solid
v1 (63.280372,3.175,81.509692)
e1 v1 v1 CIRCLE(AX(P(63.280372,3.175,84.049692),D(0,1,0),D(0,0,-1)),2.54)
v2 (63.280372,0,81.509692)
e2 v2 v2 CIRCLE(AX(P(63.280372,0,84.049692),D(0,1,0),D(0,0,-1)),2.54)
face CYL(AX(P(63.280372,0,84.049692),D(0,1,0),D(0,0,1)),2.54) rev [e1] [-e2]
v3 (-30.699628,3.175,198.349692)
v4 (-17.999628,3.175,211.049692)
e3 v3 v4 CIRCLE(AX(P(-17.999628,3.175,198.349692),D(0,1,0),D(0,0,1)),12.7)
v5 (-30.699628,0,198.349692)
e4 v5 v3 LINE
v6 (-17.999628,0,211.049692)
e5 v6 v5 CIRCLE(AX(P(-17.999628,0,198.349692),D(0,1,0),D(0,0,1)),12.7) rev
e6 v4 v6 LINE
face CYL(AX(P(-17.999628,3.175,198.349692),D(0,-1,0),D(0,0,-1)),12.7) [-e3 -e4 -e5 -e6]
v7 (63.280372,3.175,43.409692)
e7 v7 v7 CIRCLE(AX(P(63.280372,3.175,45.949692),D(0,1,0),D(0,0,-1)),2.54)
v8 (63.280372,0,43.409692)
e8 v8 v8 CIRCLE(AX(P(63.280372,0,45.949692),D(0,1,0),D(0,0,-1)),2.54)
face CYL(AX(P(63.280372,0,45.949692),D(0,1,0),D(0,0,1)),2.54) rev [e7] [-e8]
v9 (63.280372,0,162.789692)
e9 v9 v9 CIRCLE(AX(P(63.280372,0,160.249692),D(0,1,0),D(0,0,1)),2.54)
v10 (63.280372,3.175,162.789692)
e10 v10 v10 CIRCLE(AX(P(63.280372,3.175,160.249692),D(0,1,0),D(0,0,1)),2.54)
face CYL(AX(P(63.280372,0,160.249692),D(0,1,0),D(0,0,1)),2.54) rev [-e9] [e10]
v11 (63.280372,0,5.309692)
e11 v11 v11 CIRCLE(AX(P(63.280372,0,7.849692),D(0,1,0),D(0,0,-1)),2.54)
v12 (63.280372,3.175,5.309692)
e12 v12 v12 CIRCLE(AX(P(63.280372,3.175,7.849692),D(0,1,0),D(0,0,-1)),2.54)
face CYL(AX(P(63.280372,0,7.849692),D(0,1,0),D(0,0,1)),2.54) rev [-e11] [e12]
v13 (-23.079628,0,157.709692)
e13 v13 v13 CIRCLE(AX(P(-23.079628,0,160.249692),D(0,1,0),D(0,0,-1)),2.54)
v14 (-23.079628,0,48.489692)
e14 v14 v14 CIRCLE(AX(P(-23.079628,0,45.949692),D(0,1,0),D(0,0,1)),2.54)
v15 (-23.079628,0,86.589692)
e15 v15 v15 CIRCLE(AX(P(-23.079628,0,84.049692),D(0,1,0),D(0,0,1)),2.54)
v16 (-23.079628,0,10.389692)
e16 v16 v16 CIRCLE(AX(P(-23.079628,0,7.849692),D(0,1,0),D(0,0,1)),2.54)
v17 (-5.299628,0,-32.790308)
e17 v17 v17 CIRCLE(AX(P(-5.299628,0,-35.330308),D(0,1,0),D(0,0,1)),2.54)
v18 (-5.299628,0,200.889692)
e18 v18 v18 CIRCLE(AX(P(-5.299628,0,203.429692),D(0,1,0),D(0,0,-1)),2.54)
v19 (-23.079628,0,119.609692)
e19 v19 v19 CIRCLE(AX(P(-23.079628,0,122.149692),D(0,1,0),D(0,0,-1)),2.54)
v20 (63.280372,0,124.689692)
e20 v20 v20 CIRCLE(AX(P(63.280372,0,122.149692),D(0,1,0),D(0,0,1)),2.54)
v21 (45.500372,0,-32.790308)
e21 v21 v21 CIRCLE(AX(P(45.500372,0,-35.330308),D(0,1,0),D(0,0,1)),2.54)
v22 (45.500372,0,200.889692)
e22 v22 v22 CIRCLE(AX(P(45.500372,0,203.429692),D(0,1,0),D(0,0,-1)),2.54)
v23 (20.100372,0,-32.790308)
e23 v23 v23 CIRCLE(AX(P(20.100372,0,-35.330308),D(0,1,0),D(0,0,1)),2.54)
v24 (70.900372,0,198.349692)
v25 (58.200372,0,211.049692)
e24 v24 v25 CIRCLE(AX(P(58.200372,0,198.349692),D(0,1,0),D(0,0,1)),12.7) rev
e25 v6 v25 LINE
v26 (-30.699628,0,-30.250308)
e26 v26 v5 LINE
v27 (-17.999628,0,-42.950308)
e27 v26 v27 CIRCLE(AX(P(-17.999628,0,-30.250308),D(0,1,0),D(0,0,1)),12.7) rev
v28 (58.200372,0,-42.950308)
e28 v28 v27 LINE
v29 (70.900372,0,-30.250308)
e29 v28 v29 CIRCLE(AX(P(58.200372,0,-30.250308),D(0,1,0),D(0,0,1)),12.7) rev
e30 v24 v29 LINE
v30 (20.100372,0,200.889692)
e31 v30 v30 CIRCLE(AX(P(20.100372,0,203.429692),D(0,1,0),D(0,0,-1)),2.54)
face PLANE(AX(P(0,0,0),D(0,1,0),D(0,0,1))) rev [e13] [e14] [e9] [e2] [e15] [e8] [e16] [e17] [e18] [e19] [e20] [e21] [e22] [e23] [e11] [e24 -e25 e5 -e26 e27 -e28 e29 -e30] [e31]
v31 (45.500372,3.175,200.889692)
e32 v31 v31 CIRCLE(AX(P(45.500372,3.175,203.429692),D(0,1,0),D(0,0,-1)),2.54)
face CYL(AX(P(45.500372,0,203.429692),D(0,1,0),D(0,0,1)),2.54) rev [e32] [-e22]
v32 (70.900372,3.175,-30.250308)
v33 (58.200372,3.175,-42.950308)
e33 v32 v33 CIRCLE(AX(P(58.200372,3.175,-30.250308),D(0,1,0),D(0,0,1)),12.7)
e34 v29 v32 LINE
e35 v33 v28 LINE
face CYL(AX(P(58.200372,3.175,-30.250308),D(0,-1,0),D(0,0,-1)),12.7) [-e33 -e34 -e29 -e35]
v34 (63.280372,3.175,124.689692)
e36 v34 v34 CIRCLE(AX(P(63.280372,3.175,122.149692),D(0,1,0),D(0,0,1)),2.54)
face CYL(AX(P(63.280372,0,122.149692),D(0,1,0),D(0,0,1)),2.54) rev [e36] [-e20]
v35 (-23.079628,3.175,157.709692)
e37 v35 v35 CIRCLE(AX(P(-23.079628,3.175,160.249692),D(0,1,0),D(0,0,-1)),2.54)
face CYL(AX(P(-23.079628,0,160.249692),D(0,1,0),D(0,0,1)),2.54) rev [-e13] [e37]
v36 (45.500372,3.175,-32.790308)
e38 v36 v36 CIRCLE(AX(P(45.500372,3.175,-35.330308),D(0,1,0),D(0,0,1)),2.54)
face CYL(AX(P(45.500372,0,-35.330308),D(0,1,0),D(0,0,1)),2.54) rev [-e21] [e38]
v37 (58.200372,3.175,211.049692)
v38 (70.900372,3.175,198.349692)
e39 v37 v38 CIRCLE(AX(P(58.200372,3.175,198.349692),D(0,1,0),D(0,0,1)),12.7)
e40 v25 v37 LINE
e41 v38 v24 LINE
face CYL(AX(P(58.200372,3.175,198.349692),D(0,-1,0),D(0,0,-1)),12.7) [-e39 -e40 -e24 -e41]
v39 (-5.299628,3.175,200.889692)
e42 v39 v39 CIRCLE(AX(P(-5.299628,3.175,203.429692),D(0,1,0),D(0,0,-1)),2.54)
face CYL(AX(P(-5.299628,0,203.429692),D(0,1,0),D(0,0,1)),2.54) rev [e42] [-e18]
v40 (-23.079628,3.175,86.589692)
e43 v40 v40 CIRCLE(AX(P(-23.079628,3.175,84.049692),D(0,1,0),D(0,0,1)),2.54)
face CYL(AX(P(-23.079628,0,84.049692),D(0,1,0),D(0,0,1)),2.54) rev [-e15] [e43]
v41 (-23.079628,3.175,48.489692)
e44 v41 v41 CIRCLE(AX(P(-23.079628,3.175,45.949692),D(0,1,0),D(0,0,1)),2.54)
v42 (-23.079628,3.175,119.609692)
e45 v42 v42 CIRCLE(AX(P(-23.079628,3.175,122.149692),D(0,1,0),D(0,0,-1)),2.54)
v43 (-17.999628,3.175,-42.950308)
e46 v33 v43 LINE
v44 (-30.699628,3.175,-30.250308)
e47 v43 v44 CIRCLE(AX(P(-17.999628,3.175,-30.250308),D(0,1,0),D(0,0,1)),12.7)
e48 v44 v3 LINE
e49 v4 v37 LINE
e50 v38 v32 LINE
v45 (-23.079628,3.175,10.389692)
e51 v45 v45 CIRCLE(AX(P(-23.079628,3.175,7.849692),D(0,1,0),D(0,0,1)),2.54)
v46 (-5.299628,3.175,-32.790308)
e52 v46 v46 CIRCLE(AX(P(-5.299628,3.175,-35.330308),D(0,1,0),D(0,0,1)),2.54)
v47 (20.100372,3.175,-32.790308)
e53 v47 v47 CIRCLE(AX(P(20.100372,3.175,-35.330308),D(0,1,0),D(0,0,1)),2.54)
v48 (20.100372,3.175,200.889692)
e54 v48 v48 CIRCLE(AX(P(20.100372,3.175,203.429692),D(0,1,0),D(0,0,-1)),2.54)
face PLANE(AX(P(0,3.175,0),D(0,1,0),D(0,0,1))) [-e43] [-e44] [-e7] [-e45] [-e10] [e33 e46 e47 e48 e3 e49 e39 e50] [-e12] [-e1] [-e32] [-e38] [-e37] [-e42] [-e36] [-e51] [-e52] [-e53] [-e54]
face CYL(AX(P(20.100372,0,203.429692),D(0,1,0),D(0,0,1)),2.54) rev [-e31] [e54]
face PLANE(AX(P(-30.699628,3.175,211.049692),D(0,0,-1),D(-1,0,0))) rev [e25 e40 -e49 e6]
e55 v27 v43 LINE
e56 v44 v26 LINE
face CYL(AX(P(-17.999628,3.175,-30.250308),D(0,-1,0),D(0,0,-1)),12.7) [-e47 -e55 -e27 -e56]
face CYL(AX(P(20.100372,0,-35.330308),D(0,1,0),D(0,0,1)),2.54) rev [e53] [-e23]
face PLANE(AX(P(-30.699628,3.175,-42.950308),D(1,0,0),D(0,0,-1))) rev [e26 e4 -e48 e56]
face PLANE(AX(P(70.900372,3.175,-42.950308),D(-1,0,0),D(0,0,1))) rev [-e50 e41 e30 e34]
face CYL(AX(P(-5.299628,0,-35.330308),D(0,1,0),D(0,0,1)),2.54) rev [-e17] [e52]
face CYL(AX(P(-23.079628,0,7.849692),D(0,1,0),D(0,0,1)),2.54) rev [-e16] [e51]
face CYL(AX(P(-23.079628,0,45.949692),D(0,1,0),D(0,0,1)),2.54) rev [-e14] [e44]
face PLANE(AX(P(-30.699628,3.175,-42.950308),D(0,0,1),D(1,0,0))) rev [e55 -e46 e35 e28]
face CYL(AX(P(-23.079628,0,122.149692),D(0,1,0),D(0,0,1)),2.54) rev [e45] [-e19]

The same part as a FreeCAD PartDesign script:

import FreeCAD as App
import Part
import Sketcher
from FreeCAD import Vector
Q = App.Units.Quantity


def edges_at(feature, points):
    """Names of the edges that pass closest to the given points."""
    edges = feature.Shape.Edges
    near = lambda p: min(range(len(edges)), key=lambda i: edges[i].distToShape(Part.Vertex(*p))[0])
    return sorted({f"Edge{near(p) + 1}" for p in points})

doc = App.newDocument("Part")
params = doc.addObject("Spreadsheet::Sheet", "Params")
for row, (alias, value) in enumerate([
    ("sketch1_width", "4 in"),
    ("sketch1_height", "10 in"),
    ("pad1_length", "0.125 in"),
    ("sketch2_diameter", "0.2 in"),
    ("fillet_radius", "0.5 in"),
], start=1):
    params.set(f"A{row}", alias)
    params.set(f"B{row}", "=" + value)
    params.setAlias(f"B{row}", alias)

body = doc.addObject("PartDesign::Body", "Body")

sketch1 = body.newObject("Sketcher::SketchObject", "Sketch")
sketch1.AttachmentSupport = (doc.getObject("XZ_Plane"), [""])
sketch1.MapMode = "FlatFace"
sketch1.addGeometry([
    Part.LineSegment(Vector(-31, -43, 0), Vector(-31, 211, 0)),
    Part.LineSegment(Vector(-31, 211, 0), Vector(71, 211, 0)),
    Part.LineSegment(Vector(71, 211, 0), Vector(71, -43, 0)),
    Part.LineSegment(Vector(71, -43, 0), Vector(-31, -43, 0)),
], False)
sketch1.addConstraint([
    Sketcher.Constraint("Coincident", 0, 2, 1, 1),
    Sketcher.Constraint("Coincident", 1, 2, 2, 1),
    Sketcher.Constraint("Coincident", 2, 2, 3, 1),
    Sketcher.Constraint("Coincident", 3, 2, 0, 1),
    Sketcher.Constraint("Vertical", 0),
    Sketcher.Constraint("Horizontal", 1),
    Sketcher.Constraint("Vertical", 2),
    Sketcher.Constraint("Horizontal", 3),
    Sketcher.Constraint("DistanceX", 1, 1, 1, 2, Q("4 in")),
    Sketcher.Constraint("DistanceY", 0, 1, 0, 2, Q("10 in")),
    Sketcher.Constraint("DistanceX", 0, 2, -1, 1, Q("30.699628 mm")),
    Sketcher.Constraint("DistanceY", -1, 1, 0, 2, Q("211.049692 mm")),
])
sketch1.setExpression("Constraints[8]", "Params.sketch1_width")
sketch1.setExpression("Constraints[9]", "Params.sketch1_height")
pad1 = body.newObject("PartDesign::Pad", "Pad")
pad1.Profile = sketch1
pad1.setExpression("Length", "Params.pad1_length")
pad1.Reversed = True

sketch2 = body.newObject("Sketcher::SketchObject", "Sketch001")
sketch2.AttachmentSupport = (doc.getObject("XZ_Plane"), [""])
sketch2.MapMode = "FlatFace"
sketch2.AttachmentOffset = App.Placement(Vector(0, 0, -0.125 * 25.4), App.Rotation())
sketch2.addGeometry([
    Part.Circle(Vector(-5.3, -35.3, 0), Vector(0, 0, 1), 2.5),
    Part.Circle(Vector(20.1, -35.3, 0), Vector(0, 0, 1), 2.5),
    Part.Circle(Vector(45.5, -35.3, 0), Vector(0, 0, 1), 2.5),
    Part.Circle(Vector(-23.1, 84, 0), Vector(0, 0, 1), 2.5),
    Part.Circle(Vector(-23.1, 45.9, 0), Vector(0, 0, 1), 2.5),
    Part.Circle(Vector(-23.1, 7.8, 0), Vector(0, 0, 1), 2.5),
    Part.Circle(Vector(63.3, 7.8, 0), Vector(0, 0, 1), 2.5),
    Part.Circle(Vector(63.3, 45.9, 0), Vector(0, 0, 1), 2.5),
    Part.Circle(Vector(63.3, 84, 0), Vector(0, 0, 1), 2.5),
    Part.Circle(Vector(63.3, 122.1, 0), Vector(0, 0, 1), 2.5),
    Part.Circle(Vector(63.3, 160.2, 0), Vector(0, 0, 1), 2.5),
    Part.Circle(Vector(-23.1, 160.2, 0), Vector(0, 0, 1), 2.5),
    Part.Circle(Vector(-23.1, 122.1, 0), Vector(0, 0, 1), 2.5),
    Part.Circle(Vector(45.5, 203.4, 0), Vector(0, 0, 1), 2.5),
    Part.Circle(Vector(20.1, 203.4, 0), Vector(0, 0, 1), 2.5),
    Part.Circle(Vector(-5.3, 203.4, 0), Vector(0, 0, 1), 2.5),
], False)
sketch2.addConstraint([
    Sketcher.Constraint("Equal", 0, 1),
    Sketcher.Constraint("Equal", 1, 2),
    Sketcher.Constraint("Equal", 2, 3),
    Sketcher.Constraint("Equal", 3, 4),
    Sketcher.Constraint("Equal", 4, 5),
    Sketcher.Constraint("Equal", 5, 6),
    Sketcher.Constraint("Equal", 6, 7),
    Sketcher.Constraint("Equal", 7, 8),
    Sketcher.Constraint("Equal", 8, 9),
    Sketcher.Constraint("Equal", 9, 10),
    Sketcher.Constraint("Equal", 10, 11),
    Sketcher.Constraint("Equal", 11, 12),
    Sketcher.Constraint("Equal", 12, 13),
    Sketcher.Constraint("Equal", 13, 14),
    Sketcher.Constraint("Equal", 14, 15),
    Sketcher.Constraint("Horizontal", 0, 3, 1, 3),
    Sketcher.Constraint("Horizontal", 1, 3, 2, 3),
    Sketcher.Constraint("Horizontal", 5, 3, 6, 3),
    Sketcher.Constraint("Horizontal", 4, 3, 7, 3),
    Sketcher.Constraint("Horizontal", 3, 3, 8, 3),
    Sketcher.Constraint("Horizontal", 10, 3, 11, 3),
    Sketcher.Constraint("Horizontal", 9, 3, 12, 3),
    Sketcher.Constraint("Horizontal", 13, 3, 14, 3),
    Sketcher.Constraint("Horizontal", 14, 3, 15, 3),
    Sketcher.Constraint("Vertical", 3, 3, 4, 3),
    Sketcher.Constraint("Vertical", 4, 3, 5, 3),
    Sketcher.Constraint("Vertical", 6, 3, 7, 3),
    Sketcher.Constraint("Vertical", 7, 3, 8, 3),
    Sketcher.Constraint("Vertical", 8, 3, 9, 3),
    Sketcher.Constraint("Vertical", 9, 3, 10, 3),
    Sketcher.Constraint("Vertical", 5, 3, 11, 3),
    Sketcher.Constraint("Vertical", 11, 3, 12, 3),
    Sketcher.Constraint("Vertical", 2, 3, 13, 3),
    Sketcher.Constraint("Vertical", 1, 3, 14, 3),
    Sketcher.Constraint("Vertical", 0, 3, 15, 3),
    Sketcher.Constraint("Diameter", 0, Q("0.2 in")),
    Sketcher.Constraint("DistanceX", 0, 3, 1, 3, Q("1 in")),
    Sketcher.Constraint("DistanceX", 1, 3, 2, 3, Q("1 in")),
    Sketcher.Constraint("DistanceY", 5, 3, 3, 3, Q("3 in")),
    Sketcher.Constraint("DistanceY", 7, 3, 9, 3, Q("3 in")),
    Sketcher.Constraint("DistanceY", 8, 3, 10, 3, Q("3 in")),
    Sketcher.Constraint("DistanceX", 3, 3, 0, 3, Q("0.7 in")),
    Sketcher.Constraint("DistanceY", 0, 3, 3, 3, Q("4.7 in")),
    Sketcher.Constraint("DistanceY", 4, 3, 3, 3, Q("1.5 in")),
    Sketcher.Constraint("DistanceX", 2, 3, 6, 3, Q("0.7 in")),
    Sketcher.Constraint("DistanceY", 10, 3, 13, 3, Q("1.7 in")),
    Sketcher.Constraint("DistanceX", 0, 3, -1, 1, Q("5.299628 mm")),
    Sketcher.Constraint("DistanceY", 0, 3, -1, 1, Q("35.330308 mm")),
])
sketch2.setExpression("Constraints[35]", "Params.sketch2_diameter")
pocket1 = body.newObject("PartDesign::Pocket", "Pocket")
pocket1.Profile = sketch2
pocket1.Type = "ThroughAll"
pocket1.Reversed = True
doc.recompute()

fillet = body.newObject("PartDesign::Fillet", "Fillet")
fillet.Base = (pocket1, edges_at(pocket1, [
    (-30.7, 1.587, -42.95),
    (70.9, 1.587, -42.95),
    (70.9, 1.587, 211.05),
    (-30.7, 1.587, 211.05),
]))
fillet.setExpression("Radius", "Params.fillet_radius")

doc.recompute()
